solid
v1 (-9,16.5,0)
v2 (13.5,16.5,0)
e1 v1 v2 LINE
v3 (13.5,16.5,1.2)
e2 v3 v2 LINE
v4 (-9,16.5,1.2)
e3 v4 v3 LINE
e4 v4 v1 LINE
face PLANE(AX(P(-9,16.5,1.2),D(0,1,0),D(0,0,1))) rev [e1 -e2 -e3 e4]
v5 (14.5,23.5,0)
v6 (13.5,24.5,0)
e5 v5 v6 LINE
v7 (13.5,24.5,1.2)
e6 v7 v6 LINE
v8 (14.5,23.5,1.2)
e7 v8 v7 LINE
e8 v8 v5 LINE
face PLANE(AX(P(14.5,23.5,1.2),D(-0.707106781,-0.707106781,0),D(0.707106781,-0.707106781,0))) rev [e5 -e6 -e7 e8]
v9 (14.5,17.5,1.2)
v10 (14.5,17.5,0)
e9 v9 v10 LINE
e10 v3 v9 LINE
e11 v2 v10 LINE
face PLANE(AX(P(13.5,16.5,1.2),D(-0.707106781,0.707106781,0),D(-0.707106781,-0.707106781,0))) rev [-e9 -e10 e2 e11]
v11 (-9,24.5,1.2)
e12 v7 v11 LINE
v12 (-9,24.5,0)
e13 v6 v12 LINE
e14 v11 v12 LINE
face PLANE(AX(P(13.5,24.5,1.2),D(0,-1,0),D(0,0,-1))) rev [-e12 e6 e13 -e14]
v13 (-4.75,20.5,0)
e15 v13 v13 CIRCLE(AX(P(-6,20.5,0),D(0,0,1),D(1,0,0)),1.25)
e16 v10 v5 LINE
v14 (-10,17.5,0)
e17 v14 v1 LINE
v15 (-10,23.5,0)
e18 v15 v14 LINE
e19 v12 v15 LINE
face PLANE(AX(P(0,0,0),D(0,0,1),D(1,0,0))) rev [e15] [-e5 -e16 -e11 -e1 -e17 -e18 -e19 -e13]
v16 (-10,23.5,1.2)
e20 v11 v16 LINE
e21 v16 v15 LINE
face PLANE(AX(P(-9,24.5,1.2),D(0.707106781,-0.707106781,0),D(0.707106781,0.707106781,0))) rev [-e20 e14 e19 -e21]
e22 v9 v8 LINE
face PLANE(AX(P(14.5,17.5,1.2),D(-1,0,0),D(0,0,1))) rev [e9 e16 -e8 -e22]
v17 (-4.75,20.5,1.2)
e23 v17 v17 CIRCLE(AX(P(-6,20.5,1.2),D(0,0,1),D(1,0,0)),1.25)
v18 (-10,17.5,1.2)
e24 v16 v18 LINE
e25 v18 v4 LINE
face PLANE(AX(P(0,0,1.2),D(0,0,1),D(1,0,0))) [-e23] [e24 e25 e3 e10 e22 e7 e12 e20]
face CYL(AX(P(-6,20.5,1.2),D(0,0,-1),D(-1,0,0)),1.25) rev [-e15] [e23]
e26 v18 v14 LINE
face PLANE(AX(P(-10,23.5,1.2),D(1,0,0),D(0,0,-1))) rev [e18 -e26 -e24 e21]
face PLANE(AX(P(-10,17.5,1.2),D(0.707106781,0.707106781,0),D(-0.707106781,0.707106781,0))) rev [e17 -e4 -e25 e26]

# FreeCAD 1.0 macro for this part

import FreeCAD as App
import Part
import Sketcher


def add_polygon(sketch, points):
    """Adds a closed chain of lines whose ends are joined by coincident constraints."""
    first, n = sketch.GeometryCount, len(points)
    for a, b in zip(points, points[1:] + points[:1]):
        sketch.addGeometry(Part.LineSegment(App.Vector(*a, 0), App.Vector(*b, 0)), False)
    for i in range(n):
        sketch.addConstraint(Sketcher.Constraint("Coincident", first + i, 2, first + (i + 1) % n, 1))

doc = App.newDocument("Part")
body = doc.addObject("PartDesign::Body", "Body")

sketch1 = doc.addObject("Sketcher::SketchObject", "Sketch")
body.addObject(sketch1)
sketch1.AttachmentSupport = (doc.XY_Plane, [""])
sketch1.MapMode = "FlatFace"
add_polygon(sketch1, [(-10, 17.5), (-9, 16.5), (13.5, 16.5), (14.5, 17.5), (14.5, 23.5), (13.5, 24.5), (-9, 24.5), (-10, 23.5)])
sketch1.addGeometry(Part.Circle(App.Vector(-6, 20.5, 0), App.Vector(0, 0, 1), 1.2), False)
sketch1.addConstraint([
    Sketcher.Constraint("Horizontal", 1),
    Sketcher.Constraint("Vertical", 3),
    Sketcher.Constraint("Horizontal", 5),
    Sketcher.Constraint("Vertical", 7),
    Sketcher.Constraint("Perpendicular", 0, 2),
    Sketcher.Constraint("Perpendicular", 2, 4),
    Sketcher.Constraint("Perpendicular", 4, 6),
    Sketcher.Constraint("Horizontal", 3, 2, 6, 2),
    Sketcher.Constraint("Horizontal", 2, 2, 7, 2),
    Sketcher.Constraint("Vertical", 1, 2, 4, 2),
    Sketcher.Constraint("Vertical", 0, 2, 5, 2),
    Sketcher.Constraint("Diameter", 8, 2.5),
    Sketcher.Constraint("DistanceY", 3, 1, 3, 2, 6.0),
    Sketcher.Constraint("DistanceX", 1, 1, 1, 2, 22.5),
    Sketcher.Constraint("DistanceX", 8, 3, -1, 1, 6.0),
    Sketcher.Constraint("DistanceX", 0, 2, -1, 1, 9.0),
    Sketcher.Constraint("DistanceX", 6, 2, -1, 1, 10.0),
    Sketcher.Constraint("DistanceY", 0, 2, 8, 3, 4.0),
    Sketcher.Constraint("DistanceY", -1, 1, 8, 3, 20.5),
])
pad1 = doc.addObject("PartDesign::Pad", "Pad")
body.addObject(pad1)
pad1.Profile = sketch1
pad1.Length = 1.2

doc.recompute()
